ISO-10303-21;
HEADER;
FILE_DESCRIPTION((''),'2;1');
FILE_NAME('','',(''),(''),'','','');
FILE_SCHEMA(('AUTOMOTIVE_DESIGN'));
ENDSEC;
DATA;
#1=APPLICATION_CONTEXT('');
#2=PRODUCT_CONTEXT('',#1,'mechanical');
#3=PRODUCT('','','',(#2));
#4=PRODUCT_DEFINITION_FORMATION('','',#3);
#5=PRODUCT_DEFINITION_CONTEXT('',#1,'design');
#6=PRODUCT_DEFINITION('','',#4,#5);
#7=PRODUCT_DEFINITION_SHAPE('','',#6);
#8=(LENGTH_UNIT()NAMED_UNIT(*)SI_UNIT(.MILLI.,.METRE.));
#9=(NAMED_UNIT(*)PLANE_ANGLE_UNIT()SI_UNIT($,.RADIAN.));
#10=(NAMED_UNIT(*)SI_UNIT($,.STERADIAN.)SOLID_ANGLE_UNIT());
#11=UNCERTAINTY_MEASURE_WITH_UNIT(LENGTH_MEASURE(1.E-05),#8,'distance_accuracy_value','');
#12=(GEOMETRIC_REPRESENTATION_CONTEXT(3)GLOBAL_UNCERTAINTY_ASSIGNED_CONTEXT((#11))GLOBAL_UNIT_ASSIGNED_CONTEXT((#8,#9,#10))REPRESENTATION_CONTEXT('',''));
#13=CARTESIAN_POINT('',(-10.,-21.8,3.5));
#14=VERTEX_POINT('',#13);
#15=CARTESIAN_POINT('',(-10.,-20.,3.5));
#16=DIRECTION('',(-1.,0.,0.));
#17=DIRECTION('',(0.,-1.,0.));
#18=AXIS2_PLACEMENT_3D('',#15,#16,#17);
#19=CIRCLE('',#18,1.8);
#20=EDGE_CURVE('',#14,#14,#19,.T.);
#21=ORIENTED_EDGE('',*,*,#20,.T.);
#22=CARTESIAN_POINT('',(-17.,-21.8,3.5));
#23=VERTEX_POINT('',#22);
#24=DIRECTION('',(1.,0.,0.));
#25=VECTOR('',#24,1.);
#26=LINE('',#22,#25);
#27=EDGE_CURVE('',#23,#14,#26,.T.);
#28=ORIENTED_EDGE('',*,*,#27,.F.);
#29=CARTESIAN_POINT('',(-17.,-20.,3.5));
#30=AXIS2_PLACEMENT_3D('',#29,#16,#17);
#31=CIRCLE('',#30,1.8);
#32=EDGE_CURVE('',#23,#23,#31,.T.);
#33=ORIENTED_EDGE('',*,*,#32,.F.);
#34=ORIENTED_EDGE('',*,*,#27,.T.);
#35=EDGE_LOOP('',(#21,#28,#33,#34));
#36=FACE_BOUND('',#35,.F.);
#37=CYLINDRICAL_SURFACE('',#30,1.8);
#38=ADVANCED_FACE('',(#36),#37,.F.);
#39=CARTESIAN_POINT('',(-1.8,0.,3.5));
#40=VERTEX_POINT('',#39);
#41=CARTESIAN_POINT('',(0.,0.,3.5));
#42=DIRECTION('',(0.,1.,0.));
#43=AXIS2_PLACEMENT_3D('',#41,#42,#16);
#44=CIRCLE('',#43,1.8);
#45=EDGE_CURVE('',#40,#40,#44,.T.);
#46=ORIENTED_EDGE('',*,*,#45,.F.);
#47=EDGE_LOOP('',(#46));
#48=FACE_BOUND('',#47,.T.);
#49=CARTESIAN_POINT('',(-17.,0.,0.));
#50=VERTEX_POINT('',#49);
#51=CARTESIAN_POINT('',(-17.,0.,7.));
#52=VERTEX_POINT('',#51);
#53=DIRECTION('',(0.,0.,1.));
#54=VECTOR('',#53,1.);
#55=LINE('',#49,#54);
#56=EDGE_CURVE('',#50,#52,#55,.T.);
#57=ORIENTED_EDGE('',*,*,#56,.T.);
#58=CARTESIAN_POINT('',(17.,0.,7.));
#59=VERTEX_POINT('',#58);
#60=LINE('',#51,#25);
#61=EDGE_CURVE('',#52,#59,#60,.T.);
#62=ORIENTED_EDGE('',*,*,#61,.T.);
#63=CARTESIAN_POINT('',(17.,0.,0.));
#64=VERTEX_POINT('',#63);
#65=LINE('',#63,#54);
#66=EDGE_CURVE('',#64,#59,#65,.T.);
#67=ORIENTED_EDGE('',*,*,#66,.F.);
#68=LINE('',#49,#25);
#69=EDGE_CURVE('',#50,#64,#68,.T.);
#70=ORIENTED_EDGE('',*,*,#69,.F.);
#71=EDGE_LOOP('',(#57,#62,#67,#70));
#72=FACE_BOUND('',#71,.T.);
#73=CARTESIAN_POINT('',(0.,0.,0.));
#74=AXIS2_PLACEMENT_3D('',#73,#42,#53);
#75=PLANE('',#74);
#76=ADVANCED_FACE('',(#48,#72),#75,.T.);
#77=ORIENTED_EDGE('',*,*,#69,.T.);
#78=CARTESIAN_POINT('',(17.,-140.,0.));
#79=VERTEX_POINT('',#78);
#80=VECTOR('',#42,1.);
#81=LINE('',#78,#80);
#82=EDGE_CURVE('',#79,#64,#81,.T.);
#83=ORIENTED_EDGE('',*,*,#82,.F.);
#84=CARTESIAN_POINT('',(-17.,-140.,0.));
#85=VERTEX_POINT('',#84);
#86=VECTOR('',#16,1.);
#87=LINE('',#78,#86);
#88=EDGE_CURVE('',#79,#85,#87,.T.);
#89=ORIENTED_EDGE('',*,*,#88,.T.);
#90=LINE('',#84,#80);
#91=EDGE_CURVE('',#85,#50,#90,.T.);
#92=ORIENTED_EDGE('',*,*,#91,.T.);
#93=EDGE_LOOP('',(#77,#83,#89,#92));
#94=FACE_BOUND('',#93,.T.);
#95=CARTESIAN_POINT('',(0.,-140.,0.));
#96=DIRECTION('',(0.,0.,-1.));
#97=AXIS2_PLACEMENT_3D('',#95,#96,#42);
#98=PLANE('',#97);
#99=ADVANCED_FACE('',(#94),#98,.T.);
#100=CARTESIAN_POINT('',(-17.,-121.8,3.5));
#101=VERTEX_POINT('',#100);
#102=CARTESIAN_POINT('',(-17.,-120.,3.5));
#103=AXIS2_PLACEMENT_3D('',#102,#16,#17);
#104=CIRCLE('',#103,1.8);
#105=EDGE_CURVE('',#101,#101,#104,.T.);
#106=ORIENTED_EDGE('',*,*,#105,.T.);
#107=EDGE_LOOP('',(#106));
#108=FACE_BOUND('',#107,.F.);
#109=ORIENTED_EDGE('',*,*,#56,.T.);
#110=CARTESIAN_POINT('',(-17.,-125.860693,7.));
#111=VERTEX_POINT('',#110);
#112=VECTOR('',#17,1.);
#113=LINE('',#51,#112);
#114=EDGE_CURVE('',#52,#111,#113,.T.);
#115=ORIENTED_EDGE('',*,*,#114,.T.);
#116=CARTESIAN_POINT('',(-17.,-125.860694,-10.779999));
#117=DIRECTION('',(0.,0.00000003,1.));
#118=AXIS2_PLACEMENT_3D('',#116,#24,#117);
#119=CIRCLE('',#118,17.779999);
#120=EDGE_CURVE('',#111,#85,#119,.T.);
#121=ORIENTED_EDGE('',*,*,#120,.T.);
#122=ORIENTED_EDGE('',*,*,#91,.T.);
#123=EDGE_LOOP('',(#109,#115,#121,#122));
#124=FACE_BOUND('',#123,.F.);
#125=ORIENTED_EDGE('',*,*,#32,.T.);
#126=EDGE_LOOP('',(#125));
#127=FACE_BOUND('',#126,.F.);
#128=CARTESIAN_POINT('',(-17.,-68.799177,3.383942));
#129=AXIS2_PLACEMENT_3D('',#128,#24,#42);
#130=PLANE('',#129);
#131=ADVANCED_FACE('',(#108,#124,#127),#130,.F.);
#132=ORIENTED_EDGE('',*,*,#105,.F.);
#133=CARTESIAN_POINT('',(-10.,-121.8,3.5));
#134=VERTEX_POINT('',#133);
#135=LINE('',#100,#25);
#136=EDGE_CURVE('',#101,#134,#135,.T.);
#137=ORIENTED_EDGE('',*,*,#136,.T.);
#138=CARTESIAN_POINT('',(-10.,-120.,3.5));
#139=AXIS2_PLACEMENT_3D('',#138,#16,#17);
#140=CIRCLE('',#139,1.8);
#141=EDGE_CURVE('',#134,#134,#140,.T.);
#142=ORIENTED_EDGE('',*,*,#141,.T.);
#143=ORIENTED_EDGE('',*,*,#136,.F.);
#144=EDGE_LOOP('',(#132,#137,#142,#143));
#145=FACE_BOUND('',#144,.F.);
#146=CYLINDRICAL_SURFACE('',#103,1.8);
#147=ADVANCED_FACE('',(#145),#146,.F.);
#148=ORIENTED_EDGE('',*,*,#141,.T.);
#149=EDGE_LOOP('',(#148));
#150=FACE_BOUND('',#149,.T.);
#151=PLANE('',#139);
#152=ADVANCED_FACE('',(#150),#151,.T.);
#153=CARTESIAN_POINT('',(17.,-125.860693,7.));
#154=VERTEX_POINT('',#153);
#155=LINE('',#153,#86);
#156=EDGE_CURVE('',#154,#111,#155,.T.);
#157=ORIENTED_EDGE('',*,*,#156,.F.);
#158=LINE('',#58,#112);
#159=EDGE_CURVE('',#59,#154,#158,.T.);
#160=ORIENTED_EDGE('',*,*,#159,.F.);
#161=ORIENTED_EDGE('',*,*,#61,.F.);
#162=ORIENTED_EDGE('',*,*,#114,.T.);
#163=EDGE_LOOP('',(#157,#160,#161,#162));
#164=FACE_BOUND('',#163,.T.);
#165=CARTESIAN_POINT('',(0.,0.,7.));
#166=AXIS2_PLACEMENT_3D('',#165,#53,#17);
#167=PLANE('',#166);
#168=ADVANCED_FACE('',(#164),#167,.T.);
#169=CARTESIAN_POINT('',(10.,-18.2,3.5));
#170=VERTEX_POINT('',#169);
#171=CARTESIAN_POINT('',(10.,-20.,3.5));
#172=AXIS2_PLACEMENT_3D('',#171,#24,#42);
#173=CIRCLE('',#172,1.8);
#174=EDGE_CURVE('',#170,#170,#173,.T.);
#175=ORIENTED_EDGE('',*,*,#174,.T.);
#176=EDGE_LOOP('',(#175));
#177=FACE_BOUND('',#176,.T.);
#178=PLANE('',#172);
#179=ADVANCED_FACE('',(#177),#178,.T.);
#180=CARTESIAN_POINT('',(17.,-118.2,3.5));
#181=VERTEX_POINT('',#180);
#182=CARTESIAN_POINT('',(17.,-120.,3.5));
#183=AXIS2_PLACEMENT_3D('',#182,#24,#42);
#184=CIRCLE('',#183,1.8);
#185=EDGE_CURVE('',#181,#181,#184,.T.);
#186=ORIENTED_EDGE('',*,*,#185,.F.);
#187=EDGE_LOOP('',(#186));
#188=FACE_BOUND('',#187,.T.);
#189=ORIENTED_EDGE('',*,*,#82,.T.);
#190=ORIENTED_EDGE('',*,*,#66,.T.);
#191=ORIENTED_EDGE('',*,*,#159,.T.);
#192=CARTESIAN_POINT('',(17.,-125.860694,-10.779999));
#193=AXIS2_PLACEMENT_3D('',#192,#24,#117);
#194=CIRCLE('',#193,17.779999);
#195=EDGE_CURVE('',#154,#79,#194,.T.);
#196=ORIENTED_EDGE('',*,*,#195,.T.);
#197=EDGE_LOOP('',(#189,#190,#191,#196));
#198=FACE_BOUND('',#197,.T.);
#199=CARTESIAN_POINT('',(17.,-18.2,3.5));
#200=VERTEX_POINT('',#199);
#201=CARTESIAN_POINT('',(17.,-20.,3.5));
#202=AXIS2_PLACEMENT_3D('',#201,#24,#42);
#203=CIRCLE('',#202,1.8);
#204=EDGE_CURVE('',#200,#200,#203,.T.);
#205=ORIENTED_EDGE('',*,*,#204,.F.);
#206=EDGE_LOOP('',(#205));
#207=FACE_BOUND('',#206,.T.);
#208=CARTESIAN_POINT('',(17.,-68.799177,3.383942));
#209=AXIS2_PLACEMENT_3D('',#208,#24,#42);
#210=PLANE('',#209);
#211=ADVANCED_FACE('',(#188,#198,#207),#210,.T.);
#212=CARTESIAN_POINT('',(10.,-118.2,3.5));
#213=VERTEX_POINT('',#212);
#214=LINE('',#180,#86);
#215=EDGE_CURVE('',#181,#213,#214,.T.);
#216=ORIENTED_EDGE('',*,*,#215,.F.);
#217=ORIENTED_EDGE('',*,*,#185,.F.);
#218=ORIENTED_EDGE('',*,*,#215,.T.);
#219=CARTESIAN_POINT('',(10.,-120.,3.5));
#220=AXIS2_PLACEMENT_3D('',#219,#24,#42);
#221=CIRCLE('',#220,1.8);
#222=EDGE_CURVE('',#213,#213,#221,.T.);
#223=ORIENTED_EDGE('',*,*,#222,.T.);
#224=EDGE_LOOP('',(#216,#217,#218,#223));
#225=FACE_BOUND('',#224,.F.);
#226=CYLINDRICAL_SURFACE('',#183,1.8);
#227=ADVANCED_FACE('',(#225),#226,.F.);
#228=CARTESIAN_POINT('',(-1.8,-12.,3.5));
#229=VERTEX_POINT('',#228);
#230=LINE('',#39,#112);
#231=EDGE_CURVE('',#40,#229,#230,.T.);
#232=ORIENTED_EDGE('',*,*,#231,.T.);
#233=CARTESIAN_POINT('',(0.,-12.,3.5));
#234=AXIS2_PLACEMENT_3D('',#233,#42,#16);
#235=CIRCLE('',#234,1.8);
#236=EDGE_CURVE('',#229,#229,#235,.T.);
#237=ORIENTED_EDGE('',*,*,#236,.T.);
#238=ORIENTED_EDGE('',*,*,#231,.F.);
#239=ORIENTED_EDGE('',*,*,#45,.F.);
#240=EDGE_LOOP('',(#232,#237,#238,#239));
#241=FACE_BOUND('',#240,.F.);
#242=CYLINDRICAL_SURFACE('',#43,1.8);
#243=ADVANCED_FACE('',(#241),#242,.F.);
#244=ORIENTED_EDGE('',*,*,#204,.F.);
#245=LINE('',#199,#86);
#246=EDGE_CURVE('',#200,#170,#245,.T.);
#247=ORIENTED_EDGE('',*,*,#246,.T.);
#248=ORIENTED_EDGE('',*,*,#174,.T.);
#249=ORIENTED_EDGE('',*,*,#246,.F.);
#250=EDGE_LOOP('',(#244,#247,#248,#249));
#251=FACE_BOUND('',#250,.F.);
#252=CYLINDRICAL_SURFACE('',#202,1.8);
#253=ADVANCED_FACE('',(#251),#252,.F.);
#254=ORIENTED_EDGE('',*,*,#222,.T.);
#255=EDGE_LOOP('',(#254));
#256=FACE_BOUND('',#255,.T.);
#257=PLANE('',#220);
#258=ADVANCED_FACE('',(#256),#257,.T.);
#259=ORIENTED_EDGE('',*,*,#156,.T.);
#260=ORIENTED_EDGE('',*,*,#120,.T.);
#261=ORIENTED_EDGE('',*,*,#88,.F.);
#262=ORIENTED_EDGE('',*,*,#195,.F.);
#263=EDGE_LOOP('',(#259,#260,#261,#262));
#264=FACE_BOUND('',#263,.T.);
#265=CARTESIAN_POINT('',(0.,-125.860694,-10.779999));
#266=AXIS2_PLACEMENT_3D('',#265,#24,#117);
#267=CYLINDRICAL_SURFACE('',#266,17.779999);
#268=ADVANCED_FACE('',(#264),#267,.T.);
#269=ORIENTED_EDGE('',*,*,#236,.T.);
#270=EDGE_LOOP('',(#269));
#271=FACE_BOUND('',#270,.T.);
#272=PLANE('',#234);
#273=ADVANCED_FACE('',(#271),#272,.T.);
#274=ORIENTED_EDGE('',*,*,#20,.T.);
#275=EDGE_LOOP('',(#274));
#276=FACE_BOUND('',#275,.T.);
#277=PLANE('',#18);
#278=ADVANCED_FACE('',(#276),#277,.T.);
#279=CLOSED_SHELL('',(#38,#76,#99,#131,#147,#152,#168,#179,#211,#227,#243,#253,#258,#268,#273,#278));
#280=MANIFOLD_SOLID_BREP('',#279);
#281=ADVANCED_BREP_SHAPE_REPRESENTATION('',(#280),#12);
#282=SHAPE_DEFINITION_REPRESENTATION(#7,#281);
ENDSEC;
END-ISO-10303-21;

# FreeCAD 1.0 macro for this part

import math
import FreeCAD as App
import Part
import Sketcher
from FreeCAD import Vector

doc = App.newDocument("Part")
body = doc.addObject("PartDesign::Body", "Body")

sketch1 = body.newObject("Sketcher::SketchObject", "Sketch")
sketch1.AttachmentSupport = (doc.getObject("YZ_Plane"), [""])
sketch1.MapMode = "FlatFace"
sketch1.addGeometry([
    Part.LineSegment(Vector(-140, 0, 0), Vector(0, 0, 0)),
    Part.LineSegment(Vector(0, 0, 0), Vector(0, 7, 0)),
    Part.LineSegment(Vector(0, 7, 0), Vector(-126, 7, 0)),
    Part.ArcOfCircle(Part.Circle(Vector(-126, -11, 0), Vector(0, 0, 1), 18), math.radians(90), math.radians(143)),
], False)
sketch1.addConstraint([
    Sketcher.Constraint("Coincident", 0, 2, 1, 1),
    Sketcher.Constraint("Coincident", 1, 2, 2, 1),
    Sketcher.Constraint("Tangent", 2, 2, 3, 1),
    Sketcher.Constraint("Coincident", 3, 2, 0, 1),
    Sketcher.Constraint("Horizontal", 0),
    Sketcher.Constraint("Vertical", 1),
    Sketcher.Constraint("Horizontal", 2),
    Sketcher.Constraint("Coincident", 0, 2, -1, 1),
    Sketcher.Constraint("DistanceX", 0, 1, 0, 2, 140.0),
    Sketcher.Constraint("DistanceY", 1, 1, 1, 2, 7.0),
    Sketcher.Constraint("Radius", 3, 17.779999),
])
pad1 = body.newObject("PartDesign::Pad", "Pad")
pad1.Profile = sketch1
pad1.Length = 34
pad1.Midplane = True

sketch2 = body.newObject("Sketcher::SketchObject", "Sketch001")
sketch2.AttachmentSupport = (doc.getObject("YZ_Plane"), [""])
sketch2.MapMode = "FlatFace"
sketch2.AttachmentOffset = App.Placement(Vector(0, 0, 17), App.Rotation())
sketch2.addGeometry([
    Part.Circle(Vector(-20, 3.5, 0), Vector(0, 0, 1), 1.8),
    Part.Circle(Vector(-120, 3.5, 0), Vector(0, 0, 1), 1.8),
], False)
sketch2.addConstraint([
    Sketcher.Constraint("Equal", 0, 1),
    Sketcher.Constraint("Horizontal", 0, 3, 1, 3),
    Sketcher.Constraint("Diameter", 0, 3.6),
    Sketcher.Constraint("DistanceX", 0, 3, -1, 1, 20.0),
    Sketcher.Constraint("DistanceX", 1, 3, -1, 1, 120.0),
    Sketcher.Constraint("DistanceY", -1, 1, 0, 3, 3.5),
])
pocket1 = body.newObject("PartDesign::Pocket", "Pocket")
pocket1.Profile = sketch2
pocket1.Length = 7

sketch3 = body.newObject("Sketcher::SketchObject", "Sketch002")
sketch3.AttachmentSupport = (doc.getObject("YZ_Plane"), [""])
sketch3.MapMode = "FlatFace"
sketch3.AttachmentOffset = App.Placement(Vector(0, 0, -17), App.Rotation())
sketch3.addGeometry([
    Part.Circle(Vector(-20, 3.5, 0), Vector(0, 0, 1), 1.8),
    Part.Circle(Vector(-120, 3.5, 0), Vector(0, 0, 1), 1.8),
], False)
sketch3.addConstraint([
    Sketcher.Constraint("Equal", 0, 1),
    Sketcher.Constraint("Horizontal", 0, 3, 1, 3),
    Sketcher.Constraint("Diameter", 0, 3.6),
    Sketcher.Constraint("DistanceX", 0, 3, -1, 1, 20.0),
    Sketcher.Constraint("DistanceX", 1, 3, -1, 1, 120.0),
    Sketcher.Constraint("DistanceY", -1, 1, 0, 3, 3.5),
])
pocket2 = body.newObject("PartDesign::Pocket", "Pocket001")
pocket2.Profile = sketch3
pocket2.Length = 7
pocket2.Reversed = True

sketch4 = body.newObject("Sketcher::SketchObject", "Sketch003")
sketch4.AttachmentSupport = (doc.getObject("XZ_Plane"), [""])
sketch4.MapMode = "FlatFace"
sketch4.addGeometry(Part.Circle(Vector(0, 3.5, 0), Vector(0, 0, 1), 1.8), False)
sketch4.addConstraint([
    Sketcher.Constraint("PointOnObject", 0, 3, -2),
    Sketcher.Constraint("Diameter", 0, 3.6),
    Sketcher.Constraint("DistanceY", -1, 1, 0, 3, 3.5),
])
pocket3 = body.newObject("PartDesign::Pocket", "Pocket002")
pocket3.Profile = sketch4
pocket3.Length = 12
pocket3.Reversed = True

doc.recompute()
